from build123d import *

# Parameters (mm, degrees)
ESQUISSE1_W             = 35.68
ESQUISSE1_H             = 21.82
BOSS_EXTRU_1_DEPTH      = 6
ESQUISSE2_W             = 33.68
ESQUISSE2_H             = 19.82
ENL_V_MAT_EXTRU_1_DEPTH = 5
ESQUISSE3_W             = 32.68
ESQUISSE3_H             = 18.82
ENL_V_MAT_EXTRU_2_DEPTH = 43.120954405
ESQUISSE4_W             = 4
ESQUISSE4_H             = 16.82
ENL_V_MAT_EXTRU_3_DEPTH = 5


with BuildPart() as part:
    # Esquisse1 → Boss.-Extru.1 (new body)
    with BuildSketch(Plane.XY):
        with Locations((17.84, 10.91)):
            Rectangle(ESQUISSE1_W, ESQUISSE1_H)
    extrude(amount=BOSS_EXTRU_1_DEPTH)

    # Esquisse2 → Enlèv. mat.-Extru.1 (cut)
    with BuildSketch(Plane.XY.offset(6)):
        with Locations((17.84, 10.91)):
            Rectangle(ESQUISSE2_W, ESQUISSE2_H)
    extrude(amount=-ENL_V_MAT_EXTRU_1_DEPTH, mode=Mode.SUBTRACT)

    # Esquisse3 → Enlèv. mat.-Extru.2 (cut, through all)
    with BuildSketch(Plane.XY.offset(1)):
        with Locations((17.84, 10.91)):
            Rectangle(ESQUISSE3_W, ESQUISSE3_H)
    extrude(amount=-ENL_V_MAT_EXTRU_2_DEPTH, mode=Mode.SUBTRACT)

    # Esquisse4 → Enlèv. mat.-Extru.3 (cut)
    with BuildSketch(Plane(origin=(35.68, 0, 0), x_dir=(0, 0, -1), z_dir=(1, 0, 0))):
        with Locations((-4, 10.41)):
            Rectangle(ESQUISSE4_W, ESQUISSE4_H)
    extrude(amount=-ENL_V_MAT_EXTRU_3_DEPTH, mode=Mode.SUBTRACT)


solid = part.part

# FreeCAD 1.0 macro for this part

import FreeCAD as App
import Part
import Sketcher
Q = App.Units.Quantity

doc = App.newDocument("Part")
body = doc.addObject("PartDesign::Body", "Body")

# Sketch on XY plane
sketch1 = body.newObject("Sketcher::SketchObject", "Sketch")
sketch1.AttachmentSupport = (doc.getObject("XY_Plane"), [""])
sketch1.MapMode = "FlatFace"
sketch1.addGeometry([
    Part.LineSegment(App.Vector(0, 22, 0), App.Vector(0, 0, 0)),
    Part.LineSegment(App.Vector(0, 0, 0), App.Vector(36, 0, 0)),
    Part.LineSegment(App.Vector(36, 0, 0), App.Vector(36, 22, 0)),
    Part.LineSegment(App.Vector(36, 22, 0), App.Vector(0, 22, 0)),
], False)
sketch1.addConstraint([
    Sketcher.Constraint("Coincident", 0, 2, 1, 1),
    Sketcher.Constraint("Coincident", 1, 2, 2, 1),
    Sketcher.Constraint("Coincident", 2, 2, 3, 1),
    Sketcher.Constraint("Coincident", 3, 2, 0, 1),
    Sketcher.Constraint("Vertical", 0),
    Sketcher.Constraint("Horizontal", 1),
    Sketcher.Constraint("Vertical", 2),
    Sketcher.Constraint("Horizontal", 3),
    Sketcher.Constraint("Coincident", 0, 2, -1, 1),
    Sketcher.Constraint("DistanceX", 1, 1, 1, 2, Q("35.68 mm")),
    Sketcher.Constraint("DistanceY", 0, 2, 0, 1, Q("21.82 mm")),
])
pad1 = body.newObject("PartDesign::Pad", "Pad")
pad1.Profile = sketch1
pad1.Length = 6

# Sketch on XY plane
sketch2 = body.newObject("Sketcher::SketchObject", "Sketch001")
sketch2.AttachmentSupport = (doc.getObject("XY_Plane"), [""])
sketch2.MapMode = "FlatFace"
sketch2.AttachmentOffset = App.Placement(App.Vector(0, 0, 6), App.Rotation())
sketch2.addGeometry([
    Part.LineSegment(App.Vector(1, 21, 0), App.Vector(1, 1, 0)),
    Part.LineSegment(App.Vector(1, 1, 0), App.Vector(35, 1, 0)),
    Part.LineSegment(App.Vector(35, 1, 0), App.Vector(35, 21, 0)),
    Part.LineSegment(App.Vector(35, 21, 0), App.Vector(1, 21, 0)),
], False)
sketch2.addConstraint([
    Sketcher.Constraint("Coincident", 0, 2, 1, 1),
    Sketcher.Constraint("Coincident", 1, 2, 2, 1),
    Sketcher.Constraint("Coincident", 2, 2, 3, 1),
    Sketcher.Constraint("Coincident", 3, 2, 0, 1),
    Sketcher.Constraint("Vertical", 0),
    Sketcher.Constraint("Horizontal", 1),
    Sketcher.Constraint("Vertical", 2),
    Sketcher.Constraint("Horizontal", 3),
    Sketcher.Constraint("DistanceX", -1, 1, 0, 2, Q("1 mm")),
    Sketcher.Constraint("DistanceY", -1, 1, 0, 2, Q("1 mm")),
    Sketcher.Constraint("DistanceX", 1, 1, 1, 2, Q("33.68 mm")),
    Sketcher.Constraint("DistanceY", 0, 2, 0, 1, Q("19.82 mm")),
])
pocket1 = body.newObject("PartDesign::Pocket", "Pocket")
pocket1.Profile = sketch2
pocket1.Length = 5

# Sketch on XY plane
sketch3 = body.newObject("Sketcher::SketchObject", "Sketch002")
sketch3.AttachmentSupport = (doc.getObject("XY_Plane"), [""])
sketch3.MapMode = "FlatFace"
sketch3.AttachmentOffset = App.Placement(App.Vector(0, 0, 1), App.Rotation())
sketch3.addGeometry([
    Part.LineSegment(App.Vector(2, 20, 0), App.Vector(2, 2, 0)),
    Part.LineSegment(App.Vector(2, 2, 0), App.Vector(34, 2, 0)),
    Part.LineSegment(App.Vector(34, 2, 0), App.Vector(34, 20, 0)),
    Part.LineSegment(App.Vector(34, 20, 0), App.Vector(2, 20, 0)),
], False)
sketch3.addConstraint([
    Sketcher.Constraint("Coincident", 0, 2, 1, 1),
    Sketcher.Constraint("Coincident", 1, 2, 2, 1),
    Sketcher.Constraint("Coincident", 2, 2, 3, 1),
    Sketcher.Constraint("Coincident", 3, 2, 0, 1),
    Sketcher.Constraint("Vertical", 0),
    Sketcher.Constraint("Horizontal", 1),
    Sketcher.Constraint("Vertical", 2),
    Sketcher.Constraint("Horizontal", 3),
    Sketcher.Constraint("DistanceX", 1, 1, 1, 2, Q("32.68 mm")),
    Sketcher.Constraint("DistanceY", 0, 2, 0, 1, Q("18.82 mm")),
    Sketcher.Constraint("DistanceX", -1, 1, 0, 2, Q("1.5 mm")),
    Sketcher.Constraint("DistanceY", -1, 1, 0, 2, Q("1.5 mm")),
])
pocket2 = body.newObject("PartDesign::Pocket", "Pocket001")
pocket2.Profile = sketch3
pocket2.Type = "ThroughAll"

# Sketch on YZ plane
sketch4 = body.newObject("Sketcher::SketchObject", "Sketch003")
sketch4.AttachmentSupport = (doc.getObject("YZ_Plane"), [""])
sketch4.MapMode = "FlatFace"
sketch4.AttachmentOffset = App.Placement(App.Vector(0, 0, 35.68), App.Rotation())
sketch4.addGeometry([
    Part.LineSegment(App.Vector(18.8, 6, 0), App.Vector(2, 6, 0)),
    Part.LineSegment(App.Vector(2, 6, 0), App.Vector(2, 2, 0)),
    Part.LineSegment(App.Vector(2, 2, 0), App.Vector(18.8, 2, 0)),
    Part.LineSegment(App.Vector(18.8, 2, 0), App.Vector(18.8, 6, 0)),
], False)
sketch4.addConstraint([
    Sketcher.Constraint("Coincident", 0, 2, 1, 1),
    Sketcher.Constraint("Coincident", 1, 2, 2, 1),
    Sketcher.Constraint("Coincident", 2, 2, 3, 1),
    Sketcher.Constraint("Coincident", 3, 2, 0, 1),
    Sketcher.Constraint("Horizontal", 0),
    Sketcher.Constraint("Vertical", 1),
    Sketcher.Constraint("Horizontal", 2),
    Sketcher.Constraint("Vertical", 3),
    Sketcher.Constraint("DistanceY", 1, 2, 1, 1, Q("4 mm")),
    Sketcher.Constraint("DistanceX", -1, 1, 0, 2, Q("2 mm")),
    Sketcher.Constraint("DistanceY", -1, 1, 0, 2, Q("6 mm")),
    Sketcher.Constraint("DistanceX", 0, 2, 0, 1, Q("16.82 mm")),
])
pocket3 = body.newObject("PartDesign::Pocket", "Pocket002")
pocket3.Profile = sketch4
pocket3.Length = 5

doc.recompute()
